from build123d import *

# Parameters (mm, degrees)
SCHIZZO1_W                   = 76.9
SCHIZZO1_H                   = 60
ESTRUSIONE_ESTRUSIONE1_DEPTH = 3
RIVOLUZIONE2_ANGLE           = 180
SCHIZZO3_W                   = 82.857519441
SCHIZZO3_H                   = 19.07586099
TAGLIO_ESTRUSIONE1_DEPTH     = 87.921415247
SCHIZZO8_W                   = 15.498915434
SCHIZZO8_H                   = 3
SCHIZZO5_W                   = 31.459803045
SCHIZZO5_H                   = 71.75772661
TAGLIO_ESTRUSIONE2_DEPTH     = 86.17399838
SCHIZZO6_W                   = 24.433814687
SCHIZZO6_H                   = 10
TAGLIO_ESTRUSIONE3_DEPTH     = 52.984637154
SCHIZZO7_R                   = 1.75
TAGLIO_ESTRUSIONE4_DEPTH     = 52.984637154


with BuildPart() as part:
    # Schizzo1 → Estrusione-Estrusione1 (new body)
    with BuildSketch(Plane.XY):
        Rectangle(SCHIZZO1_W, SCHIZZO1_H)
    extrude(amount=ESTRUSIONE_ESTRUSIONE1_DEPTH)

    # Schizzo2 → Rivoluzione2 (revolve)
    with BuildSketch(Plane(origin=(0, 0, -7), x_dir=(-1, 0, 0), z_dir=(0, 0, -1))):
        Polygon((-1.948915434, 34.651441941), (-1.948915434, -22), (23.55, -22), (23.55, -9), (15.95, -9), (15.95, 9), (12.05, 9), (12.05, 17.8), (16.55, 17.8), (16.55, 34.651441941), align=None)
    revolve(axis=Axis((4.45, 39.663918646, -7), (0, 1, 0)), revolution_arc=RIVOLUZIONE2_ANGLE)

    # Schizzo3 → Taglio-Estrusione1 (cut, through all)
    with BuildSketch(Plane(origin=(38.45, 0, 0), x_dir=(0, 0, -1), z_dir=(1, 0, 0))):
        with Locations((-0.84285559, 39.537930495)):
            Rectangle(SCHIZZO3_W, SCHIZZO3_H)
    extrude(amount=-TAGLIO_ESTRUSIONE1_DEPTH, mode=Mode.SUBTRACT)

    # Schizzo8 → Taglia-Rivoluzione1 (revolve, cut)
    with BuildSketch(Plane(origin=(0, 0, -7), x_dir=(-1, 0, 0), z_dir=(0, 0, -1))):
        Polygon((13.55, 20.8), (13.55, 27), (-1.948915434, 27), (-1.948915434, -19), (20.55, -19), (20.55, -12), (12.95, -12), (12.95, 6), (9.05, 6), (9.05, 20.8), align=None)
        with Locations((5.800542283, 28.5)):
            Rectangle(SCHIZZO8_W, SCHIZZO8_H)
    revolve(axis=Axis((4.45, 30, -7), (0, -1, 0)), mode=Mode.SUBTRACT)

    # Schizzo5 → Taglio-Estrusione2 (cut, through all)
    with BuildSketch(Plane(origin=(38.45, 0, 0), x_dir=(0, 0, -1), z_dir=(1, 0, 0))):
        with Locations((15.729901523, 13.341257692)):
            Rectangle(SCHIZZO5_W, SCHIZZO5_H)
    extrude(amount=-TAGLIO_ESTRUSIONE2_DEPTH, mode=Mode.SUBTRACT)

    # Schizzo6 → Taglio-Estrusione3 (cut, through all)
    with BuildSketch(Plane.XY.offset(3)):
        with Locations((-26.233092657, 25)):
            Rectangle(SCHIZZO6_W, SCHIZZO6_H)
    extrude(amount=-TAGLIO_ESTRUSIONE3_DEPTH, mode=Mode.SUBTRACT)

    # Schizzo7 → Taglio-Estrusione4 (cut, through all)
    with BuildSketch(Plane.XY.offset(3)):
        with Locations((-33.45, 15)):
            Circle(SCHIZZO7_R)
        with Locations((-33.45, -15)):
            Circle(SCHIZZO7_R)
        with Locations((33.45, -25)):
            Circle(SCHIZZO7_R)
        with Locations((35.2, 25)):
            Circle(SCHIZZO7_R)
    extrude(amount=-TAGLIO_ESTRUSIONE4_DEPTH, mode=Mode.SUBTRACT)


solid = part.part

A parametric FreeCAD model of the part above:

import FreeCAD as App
import Part
import Sketcher

V = App.Vector

doc = App.newDocument("Part")
body = doc.addObject("PartDesign::Body", "Body")

# Sketch on XY plane
sketch1 = body.newObject("Sketcher::SketchObject", "Sketch")
sketch1.AttachmentSupport = (doc.getObject("XY_Plane"), [""])
sketch1.MapMode = "FlatFace"
sketch1.addGeometry(Part.LineSegment(V(-38, 30, 0), V(-38, -30, 0)), False)
sketch1.addGeometry(Part.LineSegment(V(-38, -30, 0), V(38, -30, 0)), False)
sketch1.addGeometry(Part.LineSegment(V(38, -30, 0), V(38, 30, 0)), False)
sketch1.addGeometry(Part.LineSegment(V(38, 30, 0), V(-38, 30, 0)), False)
sketch1.addConstraint(Sketcher.Constraint("Coincident", 0, 2, 1, 1))
sketch1.addConstraint(Sketcher.Constraint("Coincident", 1, 2, 2, 1))
sketch1.addConstraint(Sketcher.Constraint("Coincident", 2, 2, 3, 1))
sketch1.addConstraint(Sketcher.Constraint("Coincident", 3, 2, 0, 1))
sketch1.addConstraint(Sketcher.Constraint("Vertical", 0))
sketch1.addConstraint(Sketcher.Constraint("Horizontal", 1))
sketch1.addConstraint(Sketcher.Constraint("Vertical", 2))
sketch1.addConstraint(Sketcher.Constraint("Horizontal", 3))
sketch1.addConstraint(Sketcher.Constraint("Symmetric", 0, 2, 2, 2, -1, 1))
sketch1.addConstraint(Sketcher.Constraint("DistanceY", 0, 2, 0, 1, 60.0))
sketch1.addConstraint(Sketcher.Constraint("DistanceX", 1, 1, 1, 2, 76.9))
pad1 = body.newObject("PartDesign::Pad", "Pad")
pad1.Profile = sketch1
pad1.Length = 3

# Sketch on XY plane
sketch2 = body.newObject("Sketcher::SketchObject", "Sketch001")
sketch2.AttachmentSupport = (doc.getObject("XY_Plane"), [""])
sketch2.MapMode = "FlatFace"
sketch2.AttachmentOffset = App.Placement(V(0, 0, -7), App.Rotation())
sketch2.addGeometry(Part.LineSegment(V(1.9, 34.7, 0), V(1.9, -22, 0)), False)
sketch2.addGeometry(Part.LineSegment(V(1.9, -22, 0), V(-23.6, -22, 0)), False)
sketch2.addGeometry(Part.LineSegment(V(-23.6, -22, 0), V(-23.6, -9, 0)), False)
sketch2.addGeometry(Part.LineSegment(V(-23.6, -9, 0), V(-15.9, -9, 0)), False)
sketch2.addGeometry(Part.LineSegment(V(-15.9, -9, 0), V(-15.9, 9, 0)), False)
sketch2.addGeometry(Part.LineSegment(V(-15.9, 9, 0), V(-12.1, 9, 0)), False)
sketch2.addGeometry(Part.LineSegment(V(-12.1, 9, 0), V(-12.1, 17.8, 0)), False)
sketch2.addGeometry(Part.LineSegment(V(-12.1, 17.8, 0), V(-16.6, 17.8, 0)), False)
sketch2.addGeometry(Part.LineSegment(V(-16.6, 17.8, 0), V(-16.6, 34.7, 0)), False)
sketch2.addGeometry(Part.LineSegment(V(-16.6, 34.7, 0), V(1.9, 34.7, 0)), False)
sketch2.addGeometry(Part.LineSegment(V(4.5, -22, 0), V(4.5, 34.7, 0)), True)  # axis
sketch2.addConstraint(Sketcher.Constraint("Coincident", 0, 2, 1, 1))
sketch2.addConstraint(Sketcher.Constraint("Coincident", 1, 2, 2, 1))
sketch2.addConstraint(Sketcher.Constraint("Coincident", 2, 2, 3, 1))
sketch2.addConstraint(Sketcher.Constraint("Coincident", 3, 2, 4, 1))
sketch2.addConstraint(Sketcher.Constraint("Coincident", 4, 2, 5, 1))
sketch2.addConstraint(Sketcher.Constraint("Coincident", 5, 2, 6, 1))
sketch2.addConstraint(Sketcher.Constraint("Coincident", 6, 2, 7, 1))
sketch2.addConstraint(Sketcher.Constraint("Coincident", 7, 2, 8, 1))
sketch2.addConstraint(Sketcher.Constraint("Coincident", 8, 2, 9, 1))
sketch2.addConstraint(Sketcher.Constraint("Coincident", 9, 2, 0, 1))
sketch2.addConstraint(Sketcher.Constraint("Vertical", 0))
sketch2.addConstraint(Sketcher.Constraint("Horizontal", 1))
sketch2.addConstraint(Sketcher.Constraint("Vertical", 2))
sketch2.addConstraint(Sketcher.Constraint("Horizontal", 3))
sketch2.addConstraint(Sketcher.Constraint("Vertical", 4))
sketch2.addConstraint(Sketcher.Constraint("Horizontal", 5))
sketch2.addConstraint(Sketcher.Constraint("Vertical", 6))
sketch2.addConstraint(Sketcher.Constraint("Horizontal", 7))
sketch2.addConstraint(Sketcher.Constraint("Vertical", 8))
sketch2.addConstraint(Sketcher.Constraint("Horizontal", 9))
sketch2.addConstraint(Sketcher.Constraint("Vertical", 10))
sketch2.addConstraint(Sketcher.Constraint("Horizontal", 1, 2, 10, 1))
sketch2.addConstraint(Sketcher.Constraint("Horizontal", 9, 2, 10, 2))
sketch2.addConstraint(Sketcher.Constraint("DistanceY", 2, 1, 2, 2, 13.0))
sketch2.addConstraint(Sketcher.Constraint("DistanceY", 4, 1, 4, 2, 18.0))
sketch2.addConstraint(Sketcher.Constraint("DistanceX", 3, 1, 3, 2, 7.6))
sketch2.addConstraint(Sketcher.Constraint("DistanceX", 5, 1, 5, 2, 3.9))
sketch2.addConstraint(Sketcher.Constraint("DistanceX", 7, 2, 7, 1, 4.5))
sketch2.addConstraint(Sketcher.Constraint("DistanceY", 6, 1, 6, 2, 8.8))
sketch2.addConstraint(Sketcher.Constraint("DistanceY", 0, 2, -1, 1, 22.0))
sketch2.addConstraint(Sketcher.Constraint("DistanceX", 1, 2, 10, 1, 28.0))
sketch2.addConstraint(Sketcher.Constraint("DistanceX", 1, 2, -1, 1, 23.55))
sketch2.addConstraint(Sketcher.Constraint("DistanceY", 0, 2, 0, 1, 56.651442))
sketch2.addConstraint(Sketcher.Constraint("DistanceX", 1, 2, 1, 1, 25.498915))
revolution = body.newObject("PartDesign::Revolution", "Revolution")
revolution.Profile = sketch2
revolution.ReferenceAxis = (sketch2, ["Axis0"])
revolution.Angle = 180

# Sketch on YZ plane
sketch3 = body.newObject("Sketcher::SketchObject", "Sketch002")
sketch3.AttachmentSupport = (doc.getObject("YZ_Plane"), [""])
sketch3.MapMode = "FlatFace"
sketch3.AttachmentOffset = App.Placement(V(0, 0, 38.45), App.Rotation())
sketch3.addGeometry(Part.LineSegment(V(49, 42, 0), V(30, 42, 0)), False)
sketch3.addGeometry(Part.LineSegment(V(30, 42, 0), V(30, -41, 0)), False)
sketch3.addGeometry(Part.LineSegment(V(30, -41, 0), V(49, -41, 0)), False)
sketch3.addGeometry(Part.LineSegment(V(49, -41, 0), V(49, 42, 0)), False)
sketch3.addConstraint(Sketcher.Constraint("Coincident", 0, 2, 1, 1))
sketch3.addConstraint(Sketcher.Constraint("Coincident", 1, 2, 2, 1))
sketch3.addConstraint(Sketcher.Constraint("Coincident", 2, 2, 3, 1))
sketch3.addConstraint(Sketcher.Constraint("Coincident", 3, 2, 0, 1))
sketch3.addConstraint(Sketcher.Constraint("Horizontal", 0))
sketch3.addConstraint(Sketcher.Constraint("Vertical", 1))
sketch3.addConstraint(Sketcher.Constraint("Horizontal", 2))
sketch3.addConstraint(Sketcher.Constraint("Vertical", 3))
sketch3.addConstraint(Sketcher.Constraint("DistanceX", -1, 1, 0, 2, 30.0))
sketch3.addConstraint(Sketcher.Constraint("DistanceX", 0, 2, 0, 1, 19.075861))
sketch3.addConstraint(Sketcher.Constraint("DistanceY", 1, 2, 1, 1, 82.857519))
sketch3.addConstraint(Sketcher.Constraint("DistanceY", -1, 1, 0, 2, 42.271615))
pocket1 = body.newObject("PartDesign::Pocket", "Pocket")
pocket1.Profile = sketch3
pocket1.Type = "ThroughAll"

# Sketch on XY plane
sketch4 = body.newObject("Sketcher::SketchObject", "Sketch003")
sketch4.AttachmentSupport = (doc.getObject("XY_Plane"), [""])
sketch4.MapMode = "FlatFace"
sketch4.AttachmentOffset = App.Placement(V(0, 0, -7), App.Rotation())
sketch4.addGeometry(Part.LineSegment(V(-13.6, 20.8, 0), V(-13.6, 30, 0)), False)
sketch4.addGeometry(Part.LineSegment(V(-13.6, 30, 0), V(1.9, 30, 0)), False)
sketch4.addGeometry(Part.LineSegment(V(1.9, 30, 0), V(1.9, -19, 0)), False)
sketch4.addGeometry(Part.LineSegment(V(1.9, -19, 0), V(-20.6, -19, 0)), False)
sketch4.addGeometry(Part.LineSegment(V(-20.6, -19, 0), V(-20.6, -12, 0)), False)
sketch4.addGeometry(Part.LineSegment(V(-20.6, -12, 0), V(-12.9, -12, 0)), False)
sketch4.addGeometry(Part.LineSegment(V(-12.9, -12, 0), V(-12.9, 6, 0)), False)
sketch4.addGeometry(Part.LineSegment(V(-12.9, 6, 0), V(-9.1, 6, 0)), False)
sketch4.addGeometry(Part.LineSegment(V(-9.1, 6, 0), V(-9.1, 20.8, 0)), False)
sketch4.addGeometry(Part.LineSegment(V(-9.1, 20.8, 0), V(-13.6, 20.8, 0)), False)
sketch4.addGeometry(Part.LineSegment(V(4.5, 30, 0), V(4.5, -19, 0)), True)  # axis
sketch4.addConstraint(Sketcher.Constraint("Coincident", 0, 2, 1, 1))
sketch4.addConstraint(Sketcher.Constraint("Coincident", 1, 2, 2, 1))
sketch4.addConstraint(Sketcher.Constraint("Coincident", 2, 2, 3, 1))
sketch4.addConstraint(Sketcher.Constraint("Coincident", 3, 2, 4, 1))
sketch4.addConstraint(Sketcher.Constraint("Coincident", 4, 2, 5, 1))
sketch4.addConstraint(Sketcher.Constraint("Coincident", 5, 2, 6, 1))
sketch4.addConstraint(Sketcher.Constraint("Coincident", 6, 2, 7, 1))
sketch4.addConstraint(Sketcher.Constraint("Coincident", 7, 2, 8, 1))
sketch4.addConstraint(Sketcher.Constraint("Coincident", 8, 2, 9, 1))
sketch4.addConstraint(Sketcher.Constraint("Coincident", 9, 2, 0, 1))
sketch4.addConstraint(Sketcher.Constraint("Vertical", 0))
sketch4.addConstraint(Sketcher.Constraint("Horizontal", 1))
sketch4.addConstraint(Sketcher.Constraint("Vertical", 2))
sketch4.addConstraint(Sketcher.Constraint("Horizontal", 3))
sketch4.addConstraint(Sketcher.Constraint("Vertical", 4))
sketch4.addConstraint(Sketcher.Constraint("Horizontal", 5))
sketch4.addConstraint(Sketcher.Constraint("Vertical", 6))
sketch4.addConstraint(Sketcher.Constraint("Horizontal", 7))
sketch4.addConstraint(Sketcher.Constraint("Vertical", 8))
sketch4.addConstraint(Sketcher.Constraint("Horizontal", 9))
sketch4.addConstraint(Sketcher.Constraint("Vertical", 10))
sketch4.addConstraint(Sketcher.Constraint("Horizontal", 1, 2, 10, 1))
sketch4.addConstraint(Sketcher.Constraint("Horizontal", 3, 2, 10, 2))
sketch4.addConstraint(Sketcher.Constraint("DistanceY", 2, 2, 2, 1, 49.0))
sketch4.addConstraint(Sketcher.Constraint("DistanceY", 4, 1, 4, 2, 7.0))
sketch4.addConstraint(Sketcher.Constraint("DistanceY", 6, 1, 6, 2, 18.0))
sketch4.addConstraint(Sketcher.Constraint("DistanceX", 5, 1, 5, 2, 7.6))
sketch4.addConstraint(Sketcher.Constraint("DistanceX", 7, 1, 7, 2, 3.9))
sketch4.addConstraint(Sketcher.Constraint("DistanceX", 9, 2, 9, 1, 4.5))
sketch4.addConstraint(Sketcher.Constraint("DistanceY", 0, 1, 0, 2, 9.2))
sketch4.addConstraint(Sketcher.Constraint("DistanceY", -1, 1, 0, 2, 30.0))
sketch4.addConstraint(Sketcher.Constraint("DistanceX", 0, 2, 10, 1, 18.0))
sketch4.addConstraint(Sketcher.Constraint("DistanceX", 0, 2, -1, 1, 13.55))
sketch4.addConstraint(Sketcher.Constraint("DistanceX", 1, 1, 1, 2, 15.498915))
groove = body.newObject("PartDesign::Groove", "Groove")
groove.Profile = sketch4
groove.ReferenceAxis = (sketch4, ["Axis0"])
groove.Angle = 360

# Sketch on YZ plane
sketch5 = body.newObject("Sketcher::SketchObject", "Sketch004")
sketch5.AttachmentSupport = (doc.getObject("YZ_Plane"), [""])
sketch5.MapMode = "FlatFace"
sketch5.AttachmentOffset = App.Placement(V(0, 0, 38.45), App.Rotation())
sketch5.addGeometry(Part.LineSegment(V(49, 0, 0), V(-23, 0, 0)), False)
sketch5.addGeometry(Part.LineSegment(V(-23, 0, 0), V(-23, -31, 0)), False)
sketch5.addGeometry(Part.LineSegment(V(-23, -31, 0), V(49, -31, 0)), False)
sketch5.addGeometry(Part.LineSegment(V(49, -31, 0), V(49, 0, 0)), False)
sketch5.addConstraint(Sketcher.Constraint("Coincident", 0, 2, 1, 1))
sketch5.addConstraint(Sketcher.Constraint("Coincident", 1, 2, 2, 1))
sketch5.addConstraint(Sketcher.Constraint("Coincident", 2, 2, 3, 1))
sketch5.addConstraint(Sketcher.Constraint("Coincident", 3, 2, 0, 1))
sketch5.addConstraint(Sketcher.Constraint("Horizontal", 0))
sketch5.addConstraint(Sketcher.Constraint("Vertical", 1))
sketch5.addConstraint(Sketcher.Constraint("Horizontal", 2))
sketch5.addConstraint(Sketcher.Constraint("Vertical", 3))
sketch5.addConstraint(Sketcher.Constraint("PointOnObject", 0, 2, -1))
sketch5.addConstraint(Sketcher.Constraint("DistanceX", 0, 2, 0, 1, 71.757727))
sketch5.addConstraint(Sketcher.Constraint("DistanceY", 1, 2, 1, 1, 31.459803))
sketch5.addConstraint(Sketcher.Constraint("DistanceX", -1, 1, 2, 2, 49.220121))
pocket2 = body.newObject("PartDesign::Pocket", "Pocket001")
pocket2.Profile = sketch5
pocket2.Type = "ThroughAll"

# Sketch on XY plane
sketch6 = body.newObject("Sketcher::SketchObject", "Sketch005")
sketch6.AttachmentSupport = (doc.getObject("XY_Plane"), [""])
sketch6.MapMode = "FlatFace"
sketch6.AttachmentOffset = App.Placement(V(0, 0, 3), App.Rotation())
sketch6.addGeometry(Part.LineSegment(V(-38, 30, 0), V(-38, 20, 0)), False)
sketch6.addGeometry(Part.LineSegment(V(-38, 20, 0), V(-14, 20, 0)), False)
sketch6.addGeometry(Part.LineSegment(V(-14, 20, 0), V(-14, 30, 0)), False)
sketch6.addGeometry(Part.LineSegment(V(-14, 30, 0), V(-38, 30, 0)), False)
sketch6.addConstraint(Sketcher.Constraint("Coincident", 0, 2, 1, 1))
sketch6.addConstraint(Sketcher.Constraint("Coincident", 1, 2, 2, 1))
sketch6.addConstraint(Sketcher.Constraint("Coincident", 2, 2, 3, 1))
sketch6.addConstraint(Sketcher.Constraint("Coincident", 3, 2, 0, 1))
sketch6.addConstraint(Sketcher.Constraint("Vertical", 0))
sketch6.addConstraint(Sketcher.Constraint("Horizontal", 1))
sketch6.addConstraint(Sketcher.Constraint("Vertical", 2))
sketch6.addConstraint(Sketcher.Constraint("Horizontal", 3))
sketch6.addConstraint(Sketcher.Constraint("DistanceY", 0, 2, 0, 1, 10.0))
sketch6.addConstraint(Sketcher.Constraint("DistanceY", -1, 1, 0, 2, 20.0))
sketch6.addConstraint(Sketcher.Constraint("DistanceX", 0, 2, -1, 1, 38.45))
sketch6.addConstraint(Sketcher.Constraint("DistanceX", 1, 1, 1, 2, 24.433815))
pocket3 = body.newObject("PartDesign::Pocket", "Pocket002")
pocket3.Profile = sketch6
pocket3.Type = "ThroughAll"

# Sketch on XY plane
sketch7 = body.newObject("Sketcher::SketchObject", "Sketch006")
sketch7.AttachmentSupport = (doc.getObject("XY_Plane"), [""])
sketch7.MapMode = "FlatFace"
sketch7.AttachmentOffset = App.Placement(V(0, 0, 3), App.Rotation())
sketch7.addGeometry(Part.Circle(V(-33.5, 15, 0), V(0, 0, 1), 1.8), False)
sketch7.addGeometry(Part.Circle(V(-33.5, -15, 0), V(0, 0, 1), 1.8), False)
sketch7.addGeometry(Part.Circle(V(33.5, -25, 0), V(0, 0, 1), 1.8), False)
sketch7.addGeometry(Part.Circle(V(35.2, 25, 0), V(0, 0, 1), 1.8), False)
sketch7.addConstraint(Sketcher.Constraint("Equal", 0, 1))
sketch7.addConstraint(Sketcher.Constraint("Equal", 1, 2))
sketch7.addConstraint(Sketcher.Constraint("Equal", 2, 3))
sketch7.addConstraint(Sketcher.Constraint("Symmetric", 0, 3, 1, 3, -1))
sketch7.addConstraint(Sketcher.Constraint("Diameter", 0, 3.5))
sketch7.addConstraint(Sketcher.Constraint("DistanceY", -1, 1, 0, 3, 15.0))
sketch7.addConstraint(Sketcher.Constraint("DistanceY", 2, 3, -1, 1, 25.0))
sketch7.addConstraint(Sketcher.Constraint("DistanceY", -1, 1, 3, 3, 25.0))
sketch7.addConstraint(Sketcher.Constraint("DistanceX", -1, 1, 3, 3, 35.2))
sketch7.addConstraint(Sketcher.Constraint("DistanceX", 1, 3, 2, 3, 66.9))
sketch7.addConstraint(Sketcher.Constraint("DistanceX", 0, 3, -1, 1, 33.45))
pocket4 = body.newObject("PartDesign::Pocket", "Pocket003")
pocket4.Profile = sketch7
pocket4.Type = "ThroughAll"

doc.recompute()
